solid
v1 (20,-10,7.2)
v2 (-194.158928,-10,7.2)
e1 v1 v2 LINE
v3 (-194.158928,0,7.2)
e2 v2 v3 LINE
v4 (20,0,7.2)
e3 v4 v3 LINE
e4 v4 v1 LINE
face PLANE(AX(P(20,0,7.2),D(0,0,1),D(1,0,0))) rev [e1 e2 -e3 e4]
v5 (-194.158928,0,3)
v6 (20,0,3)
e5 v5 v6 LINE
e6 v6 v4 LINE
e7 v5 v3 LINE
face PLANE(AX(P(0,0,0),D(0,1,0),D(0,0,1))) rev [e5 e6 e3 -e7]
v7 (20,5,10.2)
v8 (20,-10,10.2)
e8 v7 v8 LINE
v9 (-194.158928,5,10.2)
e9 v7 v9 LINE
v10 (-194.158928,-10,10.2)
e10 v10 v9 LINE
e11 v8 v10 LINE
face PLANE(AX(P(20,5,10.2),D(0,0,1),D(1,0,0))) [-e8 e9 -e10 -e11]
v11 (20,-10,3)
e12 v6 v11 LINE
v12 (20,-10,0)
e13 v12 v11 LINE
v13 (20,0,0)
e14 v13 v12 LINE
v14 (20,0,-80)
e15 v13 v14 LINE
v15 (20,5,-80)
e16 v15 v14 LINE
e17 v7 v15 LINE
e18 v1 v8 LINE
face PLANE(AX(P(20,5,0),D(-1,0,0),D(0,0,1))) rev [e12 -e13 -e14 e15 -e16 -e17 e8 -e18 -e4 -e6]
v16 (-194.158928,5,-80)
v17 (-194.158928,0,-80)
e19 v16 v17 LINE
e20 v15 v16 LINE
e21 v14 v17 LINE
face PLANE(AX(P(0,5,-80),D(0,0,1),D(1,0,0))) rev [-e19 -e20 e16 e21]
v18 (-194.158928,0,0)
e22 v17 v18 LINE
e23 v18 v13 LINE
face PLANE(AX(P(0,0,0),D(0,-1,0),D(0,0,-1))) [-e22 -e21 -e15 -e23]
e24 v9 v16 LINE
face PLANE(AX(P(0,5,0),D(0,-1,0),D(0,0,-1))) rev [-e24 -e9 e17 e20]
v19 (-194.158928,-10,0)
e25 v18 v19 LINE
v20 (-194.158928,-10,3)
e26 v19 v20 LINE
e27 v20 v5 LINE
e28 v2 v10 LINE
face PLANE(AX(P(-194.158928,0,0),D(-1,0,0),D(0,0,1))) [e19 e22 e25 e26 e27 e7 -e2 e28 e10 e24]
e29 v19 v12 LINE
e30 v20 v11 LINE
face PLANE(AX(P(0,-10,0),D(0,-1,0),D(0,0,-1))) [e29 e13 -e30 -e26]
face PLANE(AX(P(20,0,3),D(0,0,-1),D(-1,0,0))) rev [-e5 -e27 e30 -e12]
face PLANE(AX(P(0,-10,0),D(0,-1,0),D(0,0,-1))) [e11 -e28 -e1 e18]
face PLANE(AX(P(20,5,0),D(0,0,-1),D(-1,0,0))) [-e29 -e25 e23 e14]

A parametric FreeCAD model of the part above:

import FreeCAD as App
import Part
import Sketcher
Q = App.Units.Quantity

doc = App.newDocument("Part")
params = doc.addObject("Spreadsheet::Sheet", "Params")
for row, (alias, value) in enumerate([
    ("sketch1_width", "20 mm"),
    ("sketch1_height", "80 mm"),
    ("pad1_length", "5 mm"),
    ("sketch2_width", "20 mm"),
    ("sketch2_height", "10.2 mm"),
    ("pad2_length", "10 mm"),
    ("pad2_length2", "5 mm"),
    ("sketch3_width", "20 mm"),
    ("sketch3_height", "4.2 mm"),
    ("pocket1_length", "10 mm"),
    ("sketch4_width", "10 mm"),
    ("sketch4_width2", "15 mm"),
    ("sketch4_height", "3 mm"),
    ("sketch4_height2", "80 mm"),
    ("sketch4_height3", "4.2 mm"),
    ("pad3_length", "194.158928 mm"),
], start=1):
    params.set(f"A{row}", alias)
    params.set(f"B{row}", "=" + value)
    params.setAlias(f"B{row}", alias)

body = doc.addObject("PartDesign::Body", "Body")

# Sketch on XZ plane
sketch1 = doc.addObject("Sketcher::SketchObject", "Sketch")
body.addObject(sketch1)
sketch1.AttachmentSupport = (doc.XZ_Plane, [""])
sketch1.MapMode = "FlatFace"
sketch1.addGeometry(Part.LineSegment(App.Vector(0, -80, 0), App.Vector(0, 0, 0)), False)
sketch1.addGeometry(Part.LineSegment(App.Vector(0, 0, 0), App.Vector(20, 0, 0)), False)
sketch1.addGeometry(Part.LineSegment(App.Vector(20, 0, 0), App.Vector(20, -80, 0)), False)
sketch1.addGeometry(Part.LineSegment(App.Vector(20, -80, 0), App.Vector(0, -80, 0)), False)
sketch1.addConstraint(Sketcher.Constraint("Coincident", 0, 2, 1, 1))
sketch1.addConstraint(Sketcher.Constraint("Coincident", 1, 2, 2, 1))
sketch1.addConstraint(Sketcher.Constraint("Coincident", 2, 2, 3, 1))
sketch1.addConstraint(Sketcher.Constraint("Coincident", 3, 2, 0, 1))
sketch1.addConstraint(Sketcher.Constraint("Vertical", 0))
sketch1.addConstraint(Sketcher.Constraint("Horizontal", 1))
sketch1.addConstraint(Sketcher.Constraint("Vertical", 2))
sketch1.addConstraint(Sketcher.Constraint("Horizontal", 3))
sketch1.addConstraint(Sketcher.Constraint("Coincident", 0, 2, -1, 1))
sketch1.addConstraint(Sketcher.Constraint("DistanceX", 1, 1, 1, 2, Q("20 mm")))
sketch1.addConstraint(Sketcher.Constraint("DistanceY", 0, 1, 0, 2, Q("80 mm")))
sketch1.setExpression("Constraints[9]", "Params.sketch1_width")
sketch1.setExpression("Constraints[10]", "Params.sketch1_height")
pad1 = doc.addObject("PartDesign::Pad", "Pad")
body.addObject(pad1)
pad1.Profile = sketch1
pad1.setExpression("Length", "Params.pad1_length")
pad1.Reversed = True

# Sketch on XZ plane
sketch2 = doc.addObject("Sketcher::SketchObject", "Sketch001")
body.addObject(sketch2)
sketch2.AttachmentSupport = (doc.XZ_Plane, [""])
sketch2.MapMode = "FlatFace"
sketch2.addGeometry(Part.LineSegment(App.Vector(0, 10, 0), App.Vector(0, 0, 0)), False)
sketch2.addGeometry(Part.LineSegment(App.Vector(0, 0, 0), App.Vector(20, 0, 0)), False)
sketch2.addGeometry(Part.LineSegment(App.Vector(20, 0, 0), App.Vector(20, 10, 0)), False)
sketch2.addGeometry(Part.LineSegment(App.Vector(20, 10, 0), App.Vector(0, 10, 0)), False)
sketch2.addConstraint(Sketcher.Constraint("Coincident", 0, 2, 1, 1))
sketch2.addConstraint(Sketcher.Constraint("Coincident", 1, 2, 2, 1))
sketch2.addConstraint(Sketcher.Constraint("Coincident", 2, 2, 3, 1))
sketch2.addConstraint(Sketcher.Constraint("Coincident", 3, 2, 0, 1))
sketch2.addConstraint(Sketcher.Constraint("Vertical", 0))
sketch2.addConstraint(Sketcher.Constraint("Horizontal", 1))
sketch2.addConstraint(Sketcher.Constraint("Vertical", 2))
sketch2.addConstraint(Sketcher.Constraint("Horizontal", 3))
sketch2.addConstraint(Sketcher.Constraint("Coincident", 0, 2, -1, 1))
sketch2.addConstraint(Sketcher.Constraint("DistanceX", 1, 1, 1, 2, Q("20 mm")))
sketch2.addConstraint(Sketcher.Constraint("DistanceY", 0, 2, 0, 1, Q("10.2 mm")))
sketch2.setExpression("Constraints[9]", "Params.sketch2_width")
sketch2.setExpression("Constraints[10]", "Params.sketch2_height")
pad2 = doc.addObject("PartDesign::Pad", "Pad001")
body.addObject(pad2)
pad2.Profile = sketch2
pad2.Type = "TwoLengths"
pad2.setExpression("Length", "Params.pad2_length")
pad2.setExpression("Length2", "Params.pad2_length2")

# Sketch on XZ plane
sketch3 = doc.addObject("Sketcher::SketchObject", "Sketch002")
body.addObject(sketch3)
sketch3.AttachmentSupport = (doc.XZ_Plane, [""])
sketch3.MapMode = "FlatFace"
sketch3.AttachmentOffset = App.Placement(App.Vector(0, 0, 10), App.Rotation())
sketch3.addGeometry(Part.LineSegment(App.Vector(0, 7.2, 0), App.Vector(0, 3, 0)), False)
sketch3.addGeometry(Part.LineSegment(App.Vector(0, 3, 0), App.Vector(20, 3, 0)), False)
sketch3.addGeometry(Part.LineSegment(App.Vector(20, 3, 0), App.Vector(20, 7.2, 0)), False)
sketch3.addGeometry(Part.LineSegment(App.Vector(20, 7.2, 0), App.Vector(0, 7.2, 0)), False)
sketch3.addConstraint(Sketcher.Constraint("Coincident", 0, 2, 1, 1))
sketch3.addConstraint(Sketcher.Constraint("Coincident", 1, 2, 2, 1))
sketch3.addConstraint(Sketcher.Constraint("Coincident", 2, 2, 3, 1))
sketch3.addConstraint(Sketcher.Constraint("Coincident", 3, 2, 0, 1))
sketch3.addConstraint(Sketcher.Constraint("Vertical", 0))
sketch3.addConstraint(Sketcher.Constraint("Horizontal", 1))
sketch3.addConstraint(Sketcher.Constraint("Vertical", 2))
sketch3.addConstraint(Sketcher.Constraint("Horizontal", 3))
sketch3.addConstraint(Sketcher.Constraint("PointOnObject", 0, 2, -2))
sketch3.addConstraint(Sketcher.Constraint("DistanceX", 1, 1, 1, 2, Q("20 mm")))
sketch3.addConstraint(Sketcher.Constraint("DistanceY", 0, 2, 0, 1, Q("4.2 mm")))
sketch3.addConstraint(Sketcher.Constraint("DistanceY", -1, 1, 0, 2, Q("3 mm")))
sketch3.setExpression("Constraints[9]", "Params.sketch3_width")
sketch3.setExpression("Constraints[10]", "Params.sketch3_height")
pocket1 = doc.addObject("PartDesign::Pocket", "Pocket")
body.addObject(pocket1)
pocket1.Profile = sketch3
pocket1.setExpression("Length", "Params.pocket1_length")

# Sketch on YZ plane
sketch4 = doc.addObject("Sketcher::SketchObject", "Sketch003")
body.addObject(sketch4)
sketch4.AttachmentSupport = (doc.YZ_Plane, [""])
sketch4.MapMode = "FlatFace"
sketch4.addGeometry(Part.LineSegment(App.Vector(0, 3, 0), App.Vector(0, 7.2, 0)), False)
sketch4.addGeometry(Part.LineSegment(App.Vector(0, 7.2, 0), App.Vector(-10, 7.2, 0)), False)
sketch4.addGeometry(Part.LineSegment(App.Vector(-10, 7.2, 0), App.Vector(-10, 10.2, 0)), False)
sketch4.addGeometry(Part.LineSegment(App.Vector(-10, 10.2, 0), App.Vector(5, 10.2, 0)), False)
sketch4.addGeometry(Part.LineSegment(App.Vector(5, 10.2, 0), App.Vector(5, -80, 0)), False)
sketch4.addGeometry(Part.LineSegment(App.Vector(5, -80, 0), App.Vector(0, -80, 0)), False)
sketch4.addGeometry(Part.LineSegment(App.Vector(0, -80, 0), App.Vector(0, 0, 0)), False)
sketch4.addGeometry(Part.LineSegment(App.Vector(0, 0, 0), App.Vector(-10, 0, 0)), False)
sketch4.addGeometry(Part.LineSegment(App.Vector(-10, 0, 0), App.Vector(-10, 3, 0)), False)
sketch4.addGeometry(Part.LineSegment(App.Vector(-10, 3, 0), App.Vector(0, 3, 0)), False)
sketch4.addConstraint(Sketcher.Constraint("Coincident", 0, 2, 1, 1))
sketch4.addConstraint(Sketcher.Constraint("Coincident", 1, 2, 2, 1))
sketch4.addConstraint(Sketcher.Constraint("Coincident", 2, 2, 3, 1))
sketch4.addConstraint(Sketcher.Constraint("Coincident", 3, 2, 4, 1))
sketch4.addConstraint(Sketcher.Constraint("Coincident", 4, 2, 5, 1))
sketch4.addConstraint(Sketcher.Constraint("Coincident", 5, 2, 6, 1))
sketch4.addConstraint(Sketcher.Constraint("Coincident", 6, 2, 7, 1))
sketch4.addConstraint(Sketcher.Constraint("Coincident", 7, 2, 8, 1))
sketch4.addConstraint(Sketcher.Constraint("Coincident", 8, 2, 9, 1))
sketch4.addConstraint(Sketcher.Constraint("Coincident", 9, 2, 0, 1))
sketch4.addConstraint(Sketcher.Constraint("Vertical", 0))
sketch4.addConstraint(Sketcher.Constraint("Horizontal", 1))
sketch4.addConstraint(Sketcher.Constraint("Vertical", 2))
sketch4.addConstraint(Sketcher.Constraint("Horizontal", 3))
sketch4.addConstraint(Sketcher.Constraint("Vertical", 4))
sketch4.addConstraint(Sketcher.Constraint("Horizontal", 5))
sketch4.addConstraint(Sketcher.Constraint("Vertical", 6))
sketch4.addConstraint(Sketcher.Constraint("Horizontal", 7))
sketch4.addConstraint(Sketcher.Constraint("Vertical", 8))
sketch4.addConstraint(Sketcher.Constraint("Horizontal", 9))
sketch4.addConstraint(Sketcher.Constraint("Coincident", 6, 2, -1, 1))
sketch4.addConstraint(Sketcher.Constraint("PointOnObject", 0, 2, -2))
sketch4.addConstraint(Sketcher.Constraint("Vertical", 2, 2, 7, 2))
sketch4.addConstraint(Sketcher.Constraint("Equal", 2, 8))
sketch4.addConstraint(Sketcher.Constraint("DistanceX", 1, 2, 1, 1, Q("10 mm")))
sketch4.addConstraint(Sketcher.Constraint("DistanceX", 3, 1, 3, 2, Q("15 mm")))
sketch4.addConstraint(Sketcher.Constraint("DistanceY", 2, 1, 2, 2, Q("3 mm")))
sketch4.addConstraint(Sketcher.Constraint("DistanceY", 6, 1, 6, 2, Q("80 mm")))
sketch4.addConstraint(Sketcher.Constraint("DistanceY", 0, 1, 0, 2, Q("4.2 mm")))
sketch4.setExpression("Constraints[24]", "Params.sketch4_width")
sketch4.setExpression("Constraints[25]", "Params.sketch4_width2")
sketch4.setExpression("Constraints[26]", "Params.sketch4_height")
sketch4.setExpression("Constraints[27]", "Params.sketch4_height2")
sketch4.setExpression("Constraints[28]", "Params.sketch4_height3")
pad3 = doc.addObject("PartDesign::Pad", "Pad002")
body.addObject(pad3)
pad3.Profile = sketch4
pad3.setExpression("Length", "Params.pad3_length")
pad3.Reversed = True

doc.recompute()
